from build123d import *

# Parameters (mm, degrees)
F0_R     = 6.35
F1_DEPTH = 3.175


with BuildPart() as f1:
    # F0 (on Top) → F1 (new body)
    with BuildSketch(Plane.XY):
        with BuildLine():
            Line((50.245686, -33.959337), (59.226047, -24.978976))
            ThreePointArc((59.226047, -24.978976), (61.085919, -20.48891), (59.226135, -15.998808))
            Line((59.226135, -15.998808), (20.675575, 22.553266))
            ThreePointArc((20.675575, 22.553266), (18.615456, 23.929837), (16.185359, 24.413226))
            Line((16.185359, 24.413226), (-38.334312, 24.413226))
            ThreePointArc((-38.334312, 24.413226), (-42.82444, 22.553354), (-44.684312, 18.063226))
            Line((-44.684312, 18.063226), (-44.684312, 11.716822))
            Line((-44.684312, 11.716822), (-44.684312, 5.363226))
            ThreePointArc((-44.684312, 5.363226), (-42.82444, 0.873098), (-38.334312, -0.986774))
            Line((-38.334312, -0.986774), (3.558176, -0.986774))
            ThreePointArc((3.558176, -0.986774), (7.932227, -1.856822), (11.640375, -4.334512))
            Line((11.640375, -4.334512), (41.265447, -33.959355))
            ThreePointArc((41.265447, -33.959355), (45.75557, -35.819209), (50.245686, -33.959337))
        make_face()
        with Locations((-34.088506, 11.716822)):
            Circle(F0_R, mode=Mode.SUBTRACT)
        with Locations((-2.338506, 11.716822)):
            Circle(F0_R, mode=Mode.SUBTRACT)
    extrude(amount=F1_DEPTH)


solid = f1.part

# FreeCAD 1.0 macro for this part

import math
import FreeCAD as App
import Part
import Sketcher

V = App.Vector
Q = App.Units.Quantity

doc = App.newDocument("Part")
body = doc.addObject("PartDesign::Body", "Body")

sketch1 = doc.addObject("Sketcher::SketchObject", "Sketch")
body.addObject(sketch1)
sketch1.AttachmentSupport = (doc.XY_Plane, [""])
sketch1.MapMode = "FlatFace"
sketch1.addGeometry([
    Part.LineSegment(V(50.2, -34, 0), V(59.2, -25, 0)),
    Part.ArcOfCircle(Part.Circle(V(54.7, -20.5, 0), V(0, 0, 1), 6.3), math.radians(-45), math.radians(45)),
    Part.LineSegment(V(59.2, -16, 0), V(20.7, 22.6, 0)),
    Part.ArcOfCircle(Part.Circle(V(16.2, 18.1, 0), V(0, 0, 1), 6.4), math.radians(45), math.radians(90)),
    Part.LineSegment(V(16.2, 24.4, 0), V(-38.3, 24.4, 0)),
    Part.ArcOfCircle(Part.Circle(V(-38.3, 18.1, 0), V(0, 0, 1), 6.4), math.radians(90), math.radians(180)),
    Part.LineSegment(V(-44.7, 18.1, 0), V(-44.7, 5.4, 0)),
    Part.ArcOfCircle(Part.Circle(V(-38.3, 5.4, 0), V(0, 0, 1), 6.4), math.radians(-180), math.radians(-90)),
    Part.LineSegment(V(-38.3, -1, 0), V(3.6, -1, 0)),
    Part.ArcOfCircle(Part.Circle(V(3.6, -12.4, 0), V(0, 0, 1), 11.4), math.radians(45), math.radians(90)),
    Part.LineSegment(V(11.6, -4.3, 0), V(41.3, -34, 0)),
    Part.ArcOfCircle(Part.Circle(V(45.8, -29.5, 0), V(0, 0, 1), 6.4), math.radians(-135), math.radians(-45)),
    Part.Circle(V(-34.1, 11.7, 0), V(0, 0, 1), 6.3),
    Part.Circle(V(-2.3, 11.7, 0), V(0, 0, 1), 6.3),
], False)
sketch1.addConstraint([
    Sketcher.Constraint("Tangent", 0, 2, 1, 1),
    Sketcher.Constraint("Tangent", 1, 2, 2, 1),
    Sketcher.Constraint("Tangent", 2, 2, 3, 1),
    Sketcher.Constraint("Tangent", 3, 2, 4, 1),
    Sketcher.Constraint("Tangent", 4, 2, 5, 1),
    Sketcher.Constraint("Tangent", 5, 2, 6, 1),
    Sketcher.Constraint("Tangent", 6, 2, 7, 1),
    Sketcher.Constraint("Tangent", 7, 2, 8, 1),
    Sketcher.Constraint("Tangent", 8, 2, 9, 2),
    Sketcher.Constraint("Tangent", 9, 1, 10, 1),
    Sketcher.Constraint("Tangent", 10, 2, 11, 1),
    Sketcher.Constraint("Tangent", 11, 2, 0, 1),
    Sketcher.Constraint("Horizontal", 4),
    Sketcher.Constraint("Vertical", 6),
    Sketcher.Constraint("Horizontal", 8),
    Sketcher.Constraint("Equal", 1, 5),
    Sketcher.Constraint("Equal", 5, 7),
    Sketcher.Constraint("Equal", 7, 11),
    Sketcher.Constraint("Equal", 11, 12),
    Sketcher.Constraint("Equal", 12, 13),
    Sketcher.Constraint("Horizontal", 12, 3, 13, 3),
    Sketcher.Constraint("Diameter", 12, Q("0.5 in")),
    Sketcher.Constraint("Radius", 3, Q("0.2500001 in")),
    Sketcher.Constraint("Radius", 9, Q("0.4499998 in")),
    Sketcher.Constraint("DistanceY", 6, 2, 6, 1, Q("0.5 in")),
    Sketcher.Constraint("Angle", 0, Q("45 deg")),
    Sketcher.Constraint("DistanceX", 12, 3, 13, 3, Q("1.25 in")),
    Sketcher.Constraint("DistanceX", -1, 1, 11, 3, Q("1.8013999 in")),
    Sketcher.Constraint("DistanceX", 4, 2, 4, 1, Q("54.519671 mm")),
    Sketcher.Constraint("DistanceX", 3, 3, 11, 3, Q("29.5702 mm")),
    Sketcher.Constraint("DistanceY", 12, 3, 3, 3, Q("6.346401 mm")),
    Sketcher.Constraint("DistanceY", 0, 2, 3, 3, Q("43.042199 mm")),
    Sketcher.Constraint("DistanceY", 11, 3, 1, 2, Q("13.4704 mm")),
    Sketcher.Constraint("DistanceX", 8, 2, 2, 2, Q("17.117399 mm")),
    Sketcher.Constraint("DistanceY", 9, 3, -1, 1, Q("12.416769 mm")),
    Sketcher.Constraint("DistanceX", 13, 3, 2, 2, Q("23.014081 mm")),
])
pad1 = doc.addObject("PartDesign::Pad", "Pad")
body.addObject(pad1)
pad1.Profile = sketch1
pad1.Length = Q("0.125 in")

doc.recompute()
